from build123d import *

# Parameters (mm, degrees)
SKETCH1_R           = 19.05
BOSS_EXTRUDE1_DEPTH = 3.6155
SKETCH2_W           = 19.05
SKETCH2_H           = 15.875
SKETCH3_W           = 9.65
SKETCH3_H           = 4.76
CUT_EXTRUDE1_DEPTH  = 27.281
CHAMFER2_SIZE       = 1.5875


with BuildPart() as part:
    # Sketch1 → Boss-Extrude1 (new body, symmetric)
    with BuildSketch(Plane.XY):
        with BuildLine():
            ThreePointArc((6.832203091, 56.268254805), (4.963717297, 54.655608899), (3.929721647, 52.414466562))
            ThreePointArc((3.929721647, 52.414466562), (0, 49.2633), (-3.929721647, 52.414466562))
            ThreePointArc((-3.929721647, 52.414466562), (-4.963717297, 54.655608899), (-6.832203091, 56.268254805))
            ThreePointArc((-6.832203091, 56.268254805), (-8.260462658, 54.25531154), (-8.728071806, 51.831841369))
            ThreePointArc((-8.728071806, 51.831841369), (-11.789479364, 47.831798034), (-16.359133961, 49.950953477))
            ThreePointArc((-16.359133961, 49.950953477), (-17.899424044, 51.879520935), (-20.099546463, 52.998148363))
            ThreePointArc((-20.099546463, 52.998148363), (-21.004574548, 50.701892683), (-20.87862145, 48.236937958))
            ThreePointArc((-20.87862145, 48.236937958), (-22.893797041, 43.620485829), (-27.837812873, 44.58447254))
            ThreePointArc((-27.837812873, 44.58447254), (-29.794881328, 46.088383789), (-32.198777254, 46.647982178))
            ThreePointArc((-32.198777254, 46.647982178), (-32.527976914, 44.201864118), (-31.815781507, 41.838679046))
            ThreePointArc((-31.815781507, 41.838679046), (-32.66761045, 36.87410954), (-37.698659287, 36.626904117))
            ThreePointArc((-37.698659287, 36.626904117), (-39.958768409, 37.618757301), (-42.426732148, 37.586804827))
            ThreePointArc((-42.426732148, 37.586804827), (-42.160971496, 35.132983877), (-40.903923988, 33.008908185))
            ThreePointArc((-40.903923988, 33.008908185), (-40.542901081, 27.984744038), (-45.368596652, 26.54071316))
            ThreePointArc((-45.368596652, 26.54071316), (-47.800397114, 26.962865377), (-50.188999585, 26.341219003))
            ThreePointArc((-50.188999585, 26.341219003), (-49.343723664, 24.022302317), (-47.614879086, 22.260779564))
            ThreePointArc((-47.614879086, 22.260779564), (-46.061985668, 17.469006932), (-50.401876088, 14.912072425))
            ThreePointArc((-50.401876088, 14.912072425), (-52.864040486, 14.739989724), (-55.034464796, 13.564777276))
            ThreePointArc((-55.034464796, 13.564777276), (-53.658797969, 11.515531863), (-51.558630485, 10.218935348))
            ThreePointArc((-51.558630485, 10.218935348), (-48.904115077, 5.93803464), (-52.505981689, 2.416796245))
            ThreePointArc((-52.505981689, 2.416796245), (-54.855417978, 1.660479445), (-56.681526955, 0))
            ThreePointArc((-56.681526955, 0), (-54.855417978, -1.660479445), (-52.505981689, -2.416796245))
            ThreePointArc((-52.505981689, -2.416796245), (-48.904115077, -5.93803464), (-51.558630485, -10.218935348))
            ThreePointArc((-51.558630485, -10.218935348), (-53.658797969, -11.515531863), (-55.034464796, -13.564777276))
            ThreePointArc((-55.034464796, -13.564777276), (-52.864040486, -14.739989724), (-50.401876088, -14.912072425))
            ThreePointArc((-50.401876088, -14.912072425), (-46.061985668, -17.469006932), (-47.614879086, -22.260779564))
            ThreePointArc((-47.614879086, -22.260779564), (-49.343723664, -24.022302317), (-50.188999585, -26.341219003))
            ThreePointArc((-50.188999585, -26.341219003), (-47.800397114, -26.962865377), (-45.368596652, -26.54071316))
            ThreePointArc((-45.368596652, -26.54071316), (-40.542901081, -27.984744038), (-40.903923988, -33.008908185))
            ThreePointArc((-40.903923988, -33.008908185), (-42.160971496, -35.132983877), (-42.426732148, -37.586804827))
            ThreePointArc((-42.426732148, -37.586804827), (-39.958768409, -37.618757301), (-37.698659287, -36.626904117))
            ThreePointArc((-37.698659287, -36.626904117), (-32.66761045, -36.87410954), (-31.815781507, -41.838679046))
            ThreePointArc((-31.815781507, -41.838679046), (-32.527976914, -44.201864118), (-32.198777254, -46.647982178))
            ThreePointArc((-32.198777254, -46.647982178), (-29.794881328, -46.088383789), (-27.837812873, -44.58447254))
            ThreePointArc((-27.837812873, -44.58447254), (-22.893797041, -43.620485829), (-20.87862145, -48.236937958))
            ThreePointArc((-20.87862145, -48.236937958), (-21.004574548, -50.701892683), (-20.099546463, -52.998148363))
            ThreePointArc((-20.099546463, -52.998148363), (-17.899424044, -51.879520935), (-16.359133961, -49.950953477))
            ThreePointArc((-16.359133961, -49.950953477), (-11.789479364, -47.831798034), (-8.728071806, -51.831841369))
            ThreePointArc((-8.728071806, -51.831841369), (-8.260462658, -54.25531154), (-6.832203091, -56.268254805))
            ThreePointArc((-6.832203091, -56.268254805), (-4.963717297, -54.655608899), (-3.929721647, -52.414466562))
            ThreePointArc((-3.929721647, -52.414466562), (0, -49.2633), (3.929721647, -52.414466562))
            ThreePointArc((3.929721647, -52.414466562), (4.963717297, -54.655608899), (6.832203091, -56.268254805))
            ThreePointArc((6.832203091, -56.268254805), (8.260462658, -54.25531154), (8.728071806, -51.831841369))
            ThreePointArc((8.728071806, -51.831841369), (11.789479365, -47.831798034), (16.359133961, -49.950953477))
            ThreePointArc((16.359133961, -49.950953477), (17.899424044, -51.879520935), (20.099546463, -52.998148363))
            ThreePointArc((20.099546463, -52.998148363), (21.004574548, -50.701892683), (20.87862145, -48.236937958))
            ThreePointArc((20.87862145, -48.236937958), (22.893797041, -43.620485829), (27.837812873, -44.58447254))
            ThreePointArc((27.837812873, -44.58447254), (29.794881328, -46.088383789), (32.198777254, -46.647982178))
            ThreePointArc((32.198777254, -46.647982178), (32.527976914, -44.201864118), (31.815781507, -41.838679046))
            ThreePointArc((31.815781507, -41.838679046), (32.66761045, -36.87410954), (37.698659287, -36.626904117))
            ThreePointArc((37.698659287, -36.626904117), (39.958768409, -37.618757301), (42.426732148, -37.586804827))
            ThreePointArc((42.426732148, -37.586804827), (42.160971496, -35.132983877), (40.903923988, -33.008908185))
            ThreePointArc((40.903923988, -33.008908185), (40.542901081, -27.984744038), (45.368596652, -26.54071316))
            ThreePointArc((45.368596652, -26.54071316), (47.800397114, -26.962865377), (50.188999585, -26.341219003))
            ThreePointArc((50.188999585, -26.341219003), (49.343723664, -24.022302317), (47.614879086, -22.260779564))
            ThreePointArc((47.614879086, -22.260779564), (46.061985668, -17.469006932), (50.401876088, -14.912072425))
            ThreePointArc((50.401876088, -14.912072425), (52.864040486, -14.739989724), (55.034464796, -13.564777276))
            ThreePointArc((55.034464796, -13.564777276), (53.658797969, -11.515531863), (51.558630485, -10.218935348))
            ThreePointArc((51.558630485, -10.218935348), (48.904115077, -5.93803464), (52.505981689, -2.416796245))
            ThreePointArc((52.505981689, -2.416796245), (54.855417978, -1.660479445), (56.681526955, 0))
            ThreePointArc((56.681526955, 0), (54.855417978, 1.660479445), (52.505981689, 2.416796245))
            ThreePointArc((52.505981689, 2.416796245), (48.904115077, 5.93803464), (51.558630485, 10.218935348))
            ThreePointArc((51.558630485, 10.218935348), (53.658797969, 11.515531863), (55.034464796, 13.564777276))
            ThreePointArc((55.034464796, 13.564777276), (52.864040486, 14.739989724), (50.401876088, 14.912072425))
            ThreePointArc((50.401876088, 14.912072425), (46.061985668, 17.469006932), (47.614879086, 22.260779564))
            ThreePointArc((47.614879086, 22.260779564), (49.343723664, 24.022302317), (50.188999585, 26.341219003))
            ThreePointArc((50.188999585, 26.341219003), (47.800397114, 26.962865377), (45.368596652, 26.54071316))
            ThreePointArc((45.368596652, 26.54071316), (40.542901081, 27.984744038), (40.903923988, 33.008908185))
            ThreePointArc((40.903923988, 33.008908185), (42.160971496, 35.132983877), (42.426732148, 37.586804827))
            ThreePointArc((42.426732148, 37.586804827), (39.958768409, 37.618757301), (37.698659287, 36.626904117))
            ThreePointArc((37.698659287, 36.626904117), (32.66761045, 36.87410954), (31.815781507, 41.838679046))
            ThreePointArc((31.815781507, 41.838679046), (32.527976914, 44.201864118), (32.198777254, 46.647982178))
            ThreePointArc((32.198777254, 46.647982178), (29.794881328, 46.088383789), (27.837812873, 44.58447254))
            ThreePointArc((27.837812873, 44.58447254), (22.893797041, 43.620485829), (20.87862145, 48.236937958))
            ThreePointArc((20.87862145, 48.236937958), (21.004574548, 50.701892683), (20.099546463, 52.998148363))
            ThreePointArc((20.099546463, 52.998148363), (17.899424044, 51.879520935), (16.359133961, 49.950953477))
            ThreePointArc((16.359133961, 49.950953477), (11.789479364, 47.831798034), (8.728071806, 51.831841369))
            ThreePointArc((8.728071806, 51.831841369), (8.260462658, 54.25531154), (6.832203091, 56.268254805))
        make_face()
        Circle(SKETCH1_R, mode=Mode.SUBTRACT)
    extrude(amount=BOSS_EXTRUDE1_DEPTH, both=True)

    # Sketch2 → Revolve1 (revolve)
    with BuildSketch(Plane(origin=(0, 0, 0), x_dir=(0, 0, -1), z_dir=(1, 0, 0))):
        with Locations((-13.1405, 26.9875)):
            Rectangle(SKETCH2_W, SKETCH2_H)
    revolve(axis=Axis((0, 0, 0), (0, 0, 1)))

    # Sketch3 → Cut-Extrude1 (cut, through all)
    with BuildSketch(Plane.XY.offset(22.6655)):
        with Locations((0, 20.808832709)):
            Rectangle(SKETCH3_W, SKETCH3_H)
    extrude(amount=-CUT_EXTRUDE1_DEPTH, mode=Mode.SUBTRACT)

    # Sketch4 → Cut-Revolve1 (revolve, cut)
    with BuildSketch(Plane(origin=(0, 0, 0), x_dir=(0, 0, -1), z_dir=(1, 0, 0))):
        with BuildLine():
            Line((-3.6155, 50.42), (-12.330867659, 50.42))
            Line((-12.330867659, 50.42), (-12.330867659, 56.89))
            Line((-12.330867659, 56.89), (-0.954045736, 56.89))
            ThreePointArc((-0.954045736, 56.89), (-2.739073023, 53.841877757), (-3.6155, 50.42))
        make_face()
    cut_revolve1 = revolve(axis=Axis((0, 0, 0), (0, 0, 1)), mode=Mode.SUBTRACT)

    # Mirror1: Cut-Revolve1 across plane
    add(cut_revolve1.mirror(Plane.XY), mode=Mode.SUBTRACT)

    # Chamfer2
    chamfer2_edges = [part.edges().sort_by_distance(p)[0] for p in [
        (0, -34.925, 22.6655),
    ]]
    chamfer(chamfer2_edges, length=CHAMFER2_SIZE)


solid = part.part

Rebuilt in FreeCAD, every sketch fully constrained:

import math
import FreeCAD as App
import Part
import Sketcher

V = App.Vector
Q = App.Units.Quantity


def edges_at(feature, points):
    """Names of the edges that pass closest to the given points."""
    edges = feature.Shape.Edges
    near = lambda p: min(range(len(edges)), key=lambda i: edges[i].distToShape(Part.Vertex(*p))[0])
    return sorted({f"Edge{near(p) + 1}" for p in points})

doc = App.newDocument("Part")
body = doc.addObject("PartDesign::Body", "Body")

# Sketch on XY plane
sketch1 = body.newObject("Sketcher::SketchObject", "Sketch")
sketch1.AttachmentSupport = (doc.getObject("XY_Plane"), [""])
sketch1.MapMode = "FlatFace"
sketch1.addGeometry(Part.ArcOfCircle(Part.Circle(V(9.6, 51.1, 0), V(0, 0, 1), 5.8), math.radians(119), math.radians(167)), False)
sketch1.addGeometry(Part.ArcOfCircle(Part.Circle(V(0, 53.3, 0), V(0, 0, 1), 4), math.radians(-167), math.radians(-13)), False)
sketch1.addGeometry(Part.ArcOfCircle(Part.Circle(V(-9.6, 51.1, 0), V(0, 0, 1), 5.8), math.radians(13), math.radians(61)), False)
sketch1.addGeometry(Part.ArcOfCircle(Part.Circle(V(-2.9, 52, 0), V(0, 0, 1), 5.8), math.radians(132), math.radians(181)), False)
sketch1.addGeometry(Part.ArcOfCircle(Part.Circle(V(-12.8, 51.7, 0), V(0, 0, 1), 4), math.radians(-154), math.radians(1)), False)
sketch1.addGeometry(Part.ArcOfCircle(Part.Circle(V(-21.6, 47.4, 0), V(0, 0, 1), 5.8), math.radians(26), math.radians(75)), False)
sketch1.addGeometry(Part.ArcOfCircle(Part.Circle(V(-15.2, 49.8, 0), V(0, 0, 1), 5.8), math.radians(146), math.radians(195)), False)
sketch1.addGeometry(Part.ArcOfCircle(Part.Circle(V(-24.8, 47.2, 0), V(0, 0, 1), 4), math.radians(-140), math.radians(15)), False)
sketch1.addGeometry(Part.ArcOfCircle(Part.Circle(V(-32.3, 40.8, 0), V(0, 0, 1), 5.8), math.radians(40), math.radians(89)), False)
sketch1.addGeometry(Part.ArcOfCircle(Part.Circle(V(-26.7, 44.7, 0), V(0, 0, 1), 5.8), math.radians(160), math.radians(209)), False)
sketch1.addGeometry(Part.ArcOfCircle(Part.Circle(V(-35.3, 39.9, 0), V(0, 0, 1), 4), math.radians(-126), math.radians(29)), False)
sketch1.addGeometry(Part.ArcOfCircle(Part.Circle(V(-41.1, 31.9, 0), V(0, 0, 1), 5.8), math.radians(54), math.radians(103)), False)
sketch1.addGeometry(Part.ArcOfCircle(Part.Circle(V(-36.6, 37, 0), V(0, 0, 1), 5.8), math.radians(174), math.radians(223)), False)
sketch1.addGeometry(Part.ArcOfCircle(Part.Circle(V(-43.9, 30.3, 0), V(0, 0, 1), 4), math.radians(-112), math.radians(43)), False)
sketch1.addGeometry(Part.ArcOfCircle(Part.Circle(V(-47.6, 21.1, 0), V(0, 0, 1), 5.8), math.radians(68), math.radians(117)), False)
sketch1.addGeometry(Part.ArcOfCircle(Part.Circle(V(-44.4, 27.1, 0), V(0, 0, 1), 5.8), math.radians(-172), math.radians(-123)), False)
sketch1.addGeometry(Part.ArcOfCircle(Part.Circle(V(-49.8, 18.9, 0), V(0, 0, 1), 4), math.radians(-98), math.radians(57)), False)
sketch1.addGeometry(Part.ArcOfCircle(Part.Circle(V(-51.2, 9.1, 0), V(0, 0, 1), 5.8), math.radians(82), math.radians(131)), False)
sketch1.addGeometry(Part.ArcOfCircle(Part.Circle(V(-49.6, 15.7, 0), V(0, 0, 1), 5.8), math.radians(-158), math.radians(-109)), False)
sketch1.addGeometry(Part.ArcOfCircle(Part.Circle(V(-52.9, 6.4, 0), V(0, 0, 1), 4), math.radians(-84), math.radians(71)), False)
sketch1.addGeometry(Part.ArcOfCircle(Part.Circle(V(-51.9, -3.4, 0), V(0, 0, 1), 5.8), math.radians(96), math.radians(144)), False)
sketch1.addGeometry(Part.ArcOfCircle(Part.Circle(V(-51.9, 3.4, 0), V(0, 0, 1), 5.8), math.radians(-144), math.radians(-96)), False)
sketch1.addGeometry(Part.ArcOfCircle(Part.Circle(V(-52.9, -6.4, 0), V(0, 0, 1), 4), math.radians(-71), math.radians(84)), False)
sketch1.addGeometry(Part.ArcOfCircle(Part.Circle(V(-49.6, -15.7, 0), V(0, 0, 1), 5.8), math.radians(109), math.radians(158)), False)
sketch1.addGeometry(Part.ArcOfCircle(Part.Circle(V(-51.2, -9.1, 0), V(0, 0, 1), 5.8), math.radians(-131), math.radians(-82)), False)
sketch1.addGeometry(Part.ArcOfCircle(Part.Circle(V(-49.8, -18.9, 0), V(0, 0, 1), 4), math.radians(-57), math.radians(98)), False)
sketch1.addGeometry(Part.ArcOfCircle(Part.Circle(V(-44.4, -27.1, 0), V(0, 0, 1), 5.8), math.radians(123), math.radians(172)), False)
sketch1.addGeometry(Part.ArcOfCircle(Part.Circle(V(-47.6, -21.1, 0), V(0, 0, 1), 5.8), math.radians(-117), math.radians(-68)), False)
sketch1.addGeometry(Part.ArcOfCircle(Part.Circle(V(-43.9, -30.3, 0), V(0, 0, 1), 4), math.radians(-43), math.radians(112)), False)
sketch1.addGeometry(Part.ArcOfCircle(Part.Circle(V(-36.6, -37, 0), V(0, 0, 1), 5.8), math.radians(137), math.radians(186)), False)
sketch1.addGeometry(Part.ArcOfCircle(Part.Circle(V(-41.1, -31.9, 0), V(0, 0, 1), 5.8), math.radians(-103), math.radians(-54)), False)
sketch1.addGeometry(Part.ArcOfCircle(Part.Circle(V(-35.3, -39.9, 0), V(0, 0, 1), 4), math.radians(-29), math.radians(126)), False)
sketch1.addGeometry(Part.ArcOfCircle(Part.Circle(V(-26.7, -44.7, 0), V(0, 0, 1), 5.8), math.radians(151), math.radians(200)), False)
sketch1.addGeometry(Part.ArcOfCircle(Part.Circle(V(-32.3, -40.8, 0), V(0, 0, 1), 5.8), math.radians(-89), math.radians(-40)), False)
sketch1.addGeometry(Part.ArcOfCircle(Part.Circle(V(-24.8, -47.2, 0), V(0, 0, 1), 4), math.radians(-15), math.radians(140)), False)
sketch1.addGeometry(Part.ArcOfCircle(Part.Circle(V(-15.2, -49.8, 0), V(0, 0, 1), 5.8), math.radians(165), math.radians(214)), False)
sketch1.addGeometry(Part.ArcOfCircle(Part.Circle(V(-21.6, -47.4, 0), V(0, 0, 1), 5.8), math.radians(-75), math.radians(-26)), False)
sketch1.addGeometry(Part.ArcOfCircle(Part.Circle(V(-12.8, -51.7, 0), V(0, 0, 1), 4), math.radians(-1), math.radians(154)), False)
sketch1.addGeometry(Part.ArcOfCircle(Part.Circle(V(-2.9, -52, 0), V(0, 0, 1), 5.8), math.radians(179), math.radians(228)), False)
sketch1.addGeometry(Part.ArcOfCircle(Part.Circle(V(-9.6, -51.1, 0), V(0, 0, 1), 5.8), math.radians(-61), math.radians(-13)), False)
sketch1.addGeometry(Part.ArcOfCircle(Part.Circle(V(0, -53.3, 0), V(0, 0, 1), 4), math.radians(13), math.radians(167)), False)
sketch1.addGeometry(Part.ArcOfCircle(Part.Circle(V(9.6, -51.1, 0), V(0, 0, 1), 5.8), math.radians(-167), math.radians(-119)), False)
sketch1.addGeometry(Part.ArcOfCircle(Part.Circle(V(2.9, -52, 0), V(0, 0, 1), 5.8), math.radians(-48), math.radians(1)), False)
sketch1.addGeometry(Part.ArcOfCircle(Part.Circle(V(12.8, -51.7, 0), V(0, 0, 1), 4), math.radians(26), math.radians(181)), False)
sketch1.addGeometry(Part.ArcOfCircle(Part.Circle(V(21.6, -47.4, 0), V(0, 0, 1), 5.8), math.radians(-154), math.radians(-105)), False)
sketch1.addGeometry(Part.ArcOfCircle(Part.Circle(V(15.2, -49.8, 0), V(0, 0, 1), 5.8), math.radians(-34), math.radians(15)), False)
sketch1.addGeometry(Part.ArcOfCircle(Part.Circle(V(24.8, -47.2, 0), V(0, 0, 1), 4), math.radians(40), math.radians(195)), False)
sketch1.addGeometry(Part.ArcOfCircle(Part.Circle(V(32.3, -40.8, 0), V(0, 0, 1), 5.8), math.radians(-140), math.radians(-91)), False)
sketch1.addGeometry(Part.ArcOfCircle(Part.Circle(V(26.7, -44.7, 0), V(0, 0, 1), 5.8), math.radians(-20), math.radians(29)), False)
sketch1.addGeometry(Part.ArcOfCircle(Part.Circle(V(35.3, -39.9, 0), V(0, 0, 1), 4), math.radians(54), math.radians(209)), False)
sketch1.addGeometry(Part.ArcOfCircle(Part.Circle(V(41.1, -31.9, 0), V(0, 0, 1), 5.8), math.radians(-126), math.radians(-77)), False)
sketch1.addGeometry(Part.ArcOfCircle(Part.Circle(V(36.6, -37, 0), V(0, 0, 1), 5.8), math.radians(-6), math.radians(43)), False)
sketch1.addGeometry(Part.ArcOfCircle(Part.Circle(V(43.9, -30.3, 0), V(0, 0, 1), 4), math.radians(68), math.radians(223)), False)
sketch1.addGeometry(Part.ArcOfCircle(Part.Circle(V(47.6, -21.1, 0), V(0, 0, 1), 5.8), math.radians(-112), math.radians(-63)), False)
sketch1.addGeometry(Part.ArcOfCircle(Part.Circle(V(44.4, -27.1, 0), V(0, 0, 1), 5.8), math.radians(8), math.radians(57)), False)
sketch1.addGeometry(Part.ArcOfCircle(Part.Circle(V(49.8, -18.9, 0), V(0, 0, 1), 4), math.radians(82), math.radians(237)), False)
sketch1.addGeometry(Part.ArcOfCircle(Part.Circle(V(51.2, -9.1, 0), V(0, 0, 1), 5.8), math.radians(-98), math.radians(-49)), False)
sketch1.addGeometry(Part.ArcOfCircle(Part.Circle(V(49.6, -15.7, 0), V(0, 0, 1), 5.8), math.radians(22), math.radians(71)), False)
sketch1.addGeometry(Part.ArcOfCircle(Part.Circle(V(52.9, -6.4, 0), V(0, 0, 1), 4), math.radians(96), math.radians(251)), False)
sketch1.addGeometry(Part.ArcOfCircle(Part.Circle(V(51.9, 3.4, 0), V(0, 0, 1), 5.8), math.radians(-84), math.radians(-36)), False)
sketch1.addGeometry(Part.ArcOfCircle(Part.Circle(V(51.9, -3.4, 0), V(0, 0, 1), 5.8), math.radians(36), math.radians(84)), False)
sketch1.addGeometry(Part.ArcOfCircle(Part.Circle(V(52.9, 6.4, 0), V(0, 0, 1), 4), math.radians(109), math.radians(264)), False)
sketch1.addGeometry(Part.ArcOfCircle(Part.Circle(V(49.6, 15.7, 0), V(0, 0, 1), 5.8), math.radians(-71), math.radians(-22)), False)
sketch1.addGeometry(Part.ArcOfCircle(Part.Circle(V(51.2, 9.1, 0), V(0, 0, 1), 5.8), math.radians(49), math.radians(98)), False)
sketch1.addGeometry(Part.ArcOfCircle(Part.Circle(V(49.8, 18.9, 0), V(0, 0, 1), 4), math.radians(123), math.radians(278)), False)
sketch1.addGeometry(Part.ArcOfCircle(Part.Circle(V(44.4, 27.1, 0), V(0, 0, 1), 5.8), math.radians(-57), math.radians(-8)), False)
sketch1.addGeometry(Part.ArcOfCircle(Part.Circle(V(47.6, 21.1, 0), V(0, 0, 1), 5.8), math.radians(63), math.radians(112)), False)
sketch1.addGeometry(Part.ArcOfCircle(Part.Circle(V(43.9, 30.3, 0), V(0, 0, 1), 4), math.radians(137), math.radians(292)), False)
sketch1.addGeometry(Part.ArcOfCircle(Part.Circle(V(36.6, 37, 0), V(0, 0, 1), 5.8), math.radians(-43), math.radians(6)), False)
sketch1.addGeometry(Part.ArcOfCircle(Part.Circle(V(41.1, 31.9, 0), V(0, 0, 1), 5.8), math.radians(77), math.radians(126)), False)
sketch1.addGeometry(Part.ArcOfCircle(Part.Circle(V(35.3, 39.9, 0), V(0, 0, 1), 4), math.radians(151), math.radians(306)), False)
sketch1.addGeometry(Part.ArcOfCircle(Part.Circle(V(26.7, 44.7, 0), V(0, 0, 1), 5.8), math.radians(-29), math.radians(20)), False)
sketch1.addGeometry(Part.ArcOfCircle(Part.Circle(V(32.3, 40.8, 0), V(0, 0, 1), 5.8), math.radians(91), math.radians(140)), False)
sketch1.addGeometry(Part.ArcOfCircle(Part.Circle(V(24.8, 47.2, 0), V(0, 0, 1), 4), math.radians(165), math.radians(320)), False)
sketch1.addGeometry(Part.ArcOfCircle(Part.Circle(V(15.2, 49.8, 0), V(0, 0, 1), 5.8), math.radians(-15), math.radians(34)), False)
sketch1.addGeometry(Part.ArcOfCircle(Part.Circle(V(21.6, 47.4, 0), V(0, 0, 1), 5.8), math.radians(105), math.radians(154)), False)
sketch1.addGeometry(Part.ArcOfCircle(Part.Circle(V(12.8, 51.7, 0), V(0, 0, 1), 4), math.radians(179), math.radians(334)), False)
sketch1.addGeometry(Part.ArcOfCircle(Part.Circle(V(2.9, 52, 0), V(0, 0, 1), 5.8), math.radians(-1), math.radians(48)), False)
sketch1.addGeometry(Part.Circle(V(0, 0, 0), V(0, 0, 1), 19.1), False)
sketch1.addConstraint(Sketcher.Constraint("Tangent", 0, 2, 1, 2))
sketch1.addConstraint(Sketcher.Constraint("Tangent", 1, 1, 2, 1))
sketch1.addConstraint(Sketcher.Constraint("Coincident", 2, 2, 3, 1))
sketch1.addConstraint(Sketcher.Constraint("Tangent", 3, 2, 4, 2))
sketch1.addConstraint(Sketcher.Constraint("Tangent", 4, 1, 5, 1))
sketch1.addConstraint(Sketcher.Constraint("Coincident", 5, 2, 6, 1))
sketch1.addConstraint(Sketcher.Constraint("Tangent", 6, 2, 7, 2))
sketch1.addConstraint(Sketcher.Constraint("Tangent", 7, 1, 8, 1))
sketch1.addConstraint(Sketcher.Constraint("Coincident", 8, 2, 9, 1))
sketch1.addConstraint(Sketcher.Constraint("Tangent", 9, 2, 10, 2))
sketch1.addConstraint(Sketcher.Constraint("Tangent", 10, 1, 11, 1))
sketch1.addConstraint(Sketcher.Constraint("Coincident", 11, 2, 12, 1))
sketch1.addConstraint(Sketcher.Constraint("Tangent", 12, 2, 13, 2))
sketch1.addConstraint(Sketcher.Constraint("Tangent", 13, 1, 14, 1))
sketch1.addConstraint(Sketcher.Constraint("Coincident", 14, 2, 15, 1))
sketch1.addConstraint(Sketcher.Constraint("Tangent", 15, 2, 16, 2))
sketch1.addConstraint(Sketcher.Constraint("Tangent", 16, 1, 17, 1))
sketch1.addConstraint(Sketcher.Constraint("Coincident", 17, 2, 18, 1))
sketch1.addConstraint(Sketcher.Constraint("Tangent", 18, 2, 19, 2))
sketch1.addConstraint(Sketcher.Constraint("Tangent", 19, 1, 20, 1))
sketch1.addConstraint(Sketcher.Constraint("Coincident", 20, 2, 21, 1))
sketch1.addConstraint(Sketcher.Constraint("Tangent", 21, 2, 22, 2))
sketch1.addConstraint(Sketcher.Constraint("Tangent", 22, 1, 23, 1))
sketch1.addConstraint(Sketcher.Constraint("Coincident", 23, 2, 24, 1))
sketch1.addConstraint(Sketcher.Constraint("Tangent", 24, 2, 25, 2))
sketch1.addConstraint(Sketcher.Constraint("Tangent", 25, 1, 26, 1))
sketch1.addConstraint(Sketcher.Constraint("Coincident", 26, 2, 27, 1))
sketch1.addConstraint(Sketcher.Constraint("Tangent", 27, 2, 28, 2))
sketch1.addConstraint(Sketcher.Constraint("Tangent", 28, 1, 29, 1))
sketch1.addConstraint(Sketcher.Constraint("Coincident", 29, 2, 30, 1))
sketch1.addConstraint(Sketcher.Constraint("Tangent", 30, 2, 31, 2))
sketch1.addConstraint(Sketcher.Constraint("Tangent", 31, 1, 32, 1))
sketch1.addConstraint(Sketcher.Constraint("Coincident", 32, 2, 33, 1))
sketch1.addConstraint(Sketcher.Constraint("Tangent", 33, 2, 34, 2))
sketch1.addConstraint(Sketcher.Constraint("Tangent", 34, 1, 35, 1))
sketch1.addConstraint(Sketcher.Constraint("Coincident", 35, 2, 36, 1))
sketch1.addConstraint(Sketcher.Constraint("Tangent", 36, 2, 37, 2))
sketch1.addConstraint(Sketcher.Constraint("Tangent", 37, 1, 38, 1))
sketch1.addConstraint(Sketcher.Constraint("Coincident", 38, 2, 39, 1))
sketch1.addConstraint(Sketcher.Constraint("Tangent", 39, 2, 40, 2))
sketch1.addConstraint(Sketcher.Constraint("Tangent", 40, 1, 41, 1))
sketch1.addConstraint(Sketcher.Constraint("Coincident", 41, 2, 42, 1))
sketch1.addConstraint(Sketcher.Constraint("Tangent", 42, 2, 43, 2))
sketch1.addConstraint(Sketcher.Constraint("Tangent", 43, 1, 44, 1))
sketch1.addConstraint(Sketcher.Constraint("Coincident", 44, 2, 45, 1))
sketch1.addConstraint(Sketcher.Constraint("Tangent", 45, 2, 46, 2))
sketch1.addConstraint(Sketcher.Constraint("Tangent", 46, 1, 47, 1))
sketch1.addConstraint(Sketcher.Constraint("Coincident", 47, 2, 48, 1))
sketch1.addConstraint(Sketcher.Constraint("Tangent", 48, 2, 49, 2))
sketch1.addConstraint(Sketcher.Constraint("Tangent", 49, 1, 50, 1))
sketch1.addConstraint(Sketcher.Constraint("Coincident", 50, 2, 51, 1))
sketch1.addConstraint(Sketcher.Constraint("Tangent", 51, 2, 52, 2))
sketch1.addConstraint(Sketcher.Constraint("Tangent", 52, 1, 53, 1))
sketch1.addConstraint(Sketcher.Constraint("Coincident", 53, 2, 54, 1))
sketch1.addConstraint(Sketcher.Constraint("Tangent", 54, 2, 55, 2))
sketch1.addConstraint(Sketcher.Constraint("Tangent", 55, 1, 56, 1))
sketch1.addConstraint(Sketcher.Constraint("Coincident", 56, 2, 57, 1))
sketch1.addConstraint(Sketcher.Constraint("Tangent", 57, 2, 58, 2))
sketch1.addConstraint(Sketcher.Constraint("Tangent", 58, 1, 59, 1))
sketch1.addConstraint(Sketcher.Constraint("Coincident", 59, 2, 60, 1))
sketch1.addConstraint(Sketcher.Constraint("Tangent", 60, 2, 61, 2))
sketch1.addConstraint(Sketcher.Constraint("Tangent", 61, 1, 62, 1))
sketch1.addConstraint(Sketcher.Constraint("Coincident", 62, 2, 63, 1))
sketch1.addConstraint(Sketcher.Constraint("Tangent", 63, 2, 64, 2))
sketch1.addConstraint(Sketcher.Constraint("Tangent", 64, 1, 65, 1))
sketch1.addConstraint(Sketcher.Constraint("Coincident", 65, 2, 66, 1))
sketch1.addConstraint(Sketcher.Constraint("Tangent", 66, 2, 67, 2))
sketch1.addConstraint(Sketcher.Constraint("Tangent", 67, 1, 68, 1))
sketch1.addConstraint(Sketcher.Constraint("Coincident", 68, 2, 69, 1))
sketch1.addConstraint(Sketcher.Constraint("Tangent", 69, 2, 70, 2))
sketch1.addConstraint(Sketcher.Constraint("Tangent", 70, 1, 71, 1))
sketch1.addConstraint(Sketcher.Constraint("Coincident", 71, 2, 72, 1))
sketch1.addConstraint(Sketcher.Constraint("Tangent", 72, 2, 73, 2))
sketch1.addConstraint(Sketcher.Constraint("Tangent", 73, 1, 74, 1))
sketch1.addConstraint(Sketcher.Constraint("Coincident", 74, 2, 75, 1))
sketch1.addConstraint(Sketcher.Constraint("Tangent", 75, 2, 76, 2))
sketch1.addConstraint(Sketcher.Constraint("Tangent", 76, 1, 77, 1))
sketch1.addConstraint(Sketcher.Constraint("Coincident", 77, 2, 0, 1))
sketch1.addConstraint(Sketcher.Constraint("Coincident", 78, 3, -1, 1))
sketch1.addConstraint(Sketcher.Constraint("Equal", 0, 2))
sketch1.addConstraint(Sketcher.Constraint("Equal", 2, 3))
sketch1.addConstraint(Sketcher.Constraint("Equal", 1, 4))
sketch1.addConstraint(Sketcher.Constraint("Equal", 3, 5))
sketch1.addConstraint(Sketcher.Constraint("Equal", 5, 6))
sketch1.addConstraint(Sketcher.Constraint("Equal", 4, 7))
sketch1.addConstraint(Sketcher.Constraint("Equal", 6, 8))
sketch1.addConstraint(Sketcher.Constraint("Equal", 8, 9))
sketch1.addConstraint(Sketcher.Constraint("Equal", 7, 10))
sketch1.addConstraint(Sketcher.Constraint("Equal", 9, 11))
sketch1.addConstraint(Sketcher.Constraint("Equal", 11, 12))
sketch1.addConstraint(Sketcher.Constraint("Equal", 10, 13))
sketch1.addConstraint(Sketcher.Constraint("Equal", 12, 14))
sketch1.addConstraint(Sketcher.Constraint("Equal", 14, 15))
sketch1.addConstraint(Sketcher.Constraint("Equal", 13, 16))
sketch1.addConstraint(Sketcher.Constraint("Equal", 15, 17))
sketch1.addConstraint(Sketcher.Constraint("Equal", 17, 18))
sketch1.addConstraint(Sketcher.Constraint("Equal", 16, 19))
sketch1.addConstraint(Sketcher.Constraint("Equal", 18, 20))
sketch1.addConstraint(Sketcher.Constraint("Equal", 20, 21))
sketch1.addConstraint(Sketcher.Constraint("Equal", 19, 22))
sketch1.addConstraint(Sketcher.Constraint("Equal", 21, 23))
sketch1.addConstraint(Sketcher.Constraint("Equal", 23, 24))
sketch1.addConstraint(Sketcher.Constraint("Equal", 22, 25))
sketch1.addConstraint(Sketcher.Constraint("Equal", 24, 26))
sketch1.addConstraint(Sketcher.Constraint("Equal", 26, 27))
sketch1.addConstraint(Sketcher.Constraint("Equal", 25, 28))
sketch1.addConstraint(Sketcher.Constraint("Equal", 27, 29))
sketch1.addConstraint(Sketcher.Constraint("Equal", 29, 30))
sketch1.addConstraint(Sketcher.Constraint("Equal", 28, 31))
sketch1.addConstraint(Sketcher.Constraint("Equal", 30, 32))
sketch1.addConstraint(Sketcher.Constraint("Equal", 32, 33))
sketch1.addConstraint(Sketcher.Constraint("Equal", 31, 34))
sketch1.addConstraint(Sketcher.Constraint("Equal", 33, 35))
sketch1.addConstraint(Sketcher.Constraint("Equal", 35, 36))
sketch1.addConstraint(Sketcher.Constraint("Equal", 34, 37))
sketch1.addConstraint(Sketcher.Constraint("Equal", 36, 38))
sketch1.addConstraint(Sketcher.Constraint("Equal", 38, 39))
sketch1.addConstraint(Sketcher.Constraint("Equal", 37, 40))
sketch1.addConstraint(Sketcher.Constraint("Equal", 39, 41))
sketch1.addConstraint(Sketcher.Constraint("Equal", 41, 42))
sketch1.addConstraint(Sketcher.Constraint("Equal", 40, 43))
sketch1.addConstraint(Sketcher.Constraint("Equal", 42, 44))
sketch1.addConstraint(Sketcher.Constraint("Equal", 44, 45))
sketch1.addConstraint(Sketcher.Constraint("Equal", 43, 46))
sketch1.addConstraint(Sketcher.Constraint("Equal", 45, 47))
sketch1.addConstraint(Sketcher.Constraint("Equal", 47, 48))
sketch1.addConstraint(Sketcher.Constraint("Equal", 46, 49))
sketch1.addConstraint(Sketcher.Constraint("Equal", 48, 50))
sketch1.addConstraint(Sketcher.Constraint("Equal", 50, 51))
sketch1.addConstraint(Sketcher.Constraint("Equal", 49, 52))
sketch1.addConstraint(Sketcher.Constraint("Equal", 51, 53))
sketch1.addConstraint(Sketcher.Constraint("Equal", 53, 54))
sketch1.addConstraint(Sketcher.Constraint("Equal", 52, 55))
sketch1.addConstraint(Sketcher.Constraint("Equal", 54, 56))
sketch1.addConstraint(Sketcher.Constraint("Equal", 56, 57))
sketch1.addConstraint(Sketcher.Constraint("Equal", 55, 58))
sketch1.addConstraint(Sketcher.Constraint("Equal", 57, 59))
sketch1.addConstraint(Sketcher.Constraint("Equal", 59, 60))
sketch1.addConstraint(Sketcher.Constraint("Equal", 58, 61))
sketch1.addConstraint(Sketcher.Constraint("Equal", 60, 62))
sketch1.addConstraint(Sketcher.Constraint("Equal", 62, 63))
sketch1.addConstraint(Sketcher.Constraint("Equal", 61, 64))
sketch1.addConstraint(Sketcher.Constraint("Equal", 63, 65))
sketch1.addConstraint(Sketcher.Constraint("Equal", 65, 66))
sketch1.addConstraint(Sketcher.Constraint("Equal", 64, 67))
sketch1.addConstraint(Sketcher.Constraint("Equal", 66, 68))
sketch1.addConstraint(Sketcher.Constraint("Equal", 68, 69))
sketch1.addConstraint(Sketcher.Constraint("Equal", 67, 70))
sketch1.addConstraint(Sketcher.Constraint("Equal", 69, 71))
sketch1.addConstraint(Sketcher.Constraint("Equal", 71, 72))
sketch1.addConstraint(Sketcher.Constraint("Equal", 70, 73))
sketch1.addConstraint(Sketcher.Constraint("Equal", 72, 74))
sketch1.addConstraint(Sketcher.Constraint("Equal", 74, 75))
sketch1.addConstraint(Sketcher.Constraint("Equal", 73, 76))
sketch1.addConstraint(Sketcher.Constraint("Equal", 75, 77))
sketch1.addConstraint(Sketcher.Constraint("Symmetric", 0, 3, 39, 3, -1, 1))
sketch1.addConstraint(Sketcher.Constraint("Symmetric", 2, 3, 41, 3, -1, 1))
sketch1.addConstraint(Sketcher.Constraint("Symmetric", 3, 3, 42, 3, -1, 1))
sketch1.addConstraint(Sketcher.Constraint("Symmetric", 5, 3, 44, 3, -1, 1))
sketch1.addConstraint(Sketcher.Constraint("Symmetric", 6, 3, 45, 3, -1, 1))
sketch1.addConstraint(Sketcher.Constraint("Symmetric", 8, 3, 47, 3, -1, 1))
sketch1.addConstraint(Sketcher.Constraint("Symmetric", 9, 3, 48, 3, -1, 1))
sketch1.addConstraint(Sketcher.Constraint("Symmetric", 11, 3, 50, 3, -1, 1))
sketch1.addConstraint(Sketcher.Constraint("Symmetric", 12, 3, 51, 3, -1, 1))
sketch1.addConstraint(Sketcher.Constraint("Symmetric", 14, 3, 53, 3, -1, 1))
sketch1.addConstraint(Sketcher.Constraint("Symmetric", 15, 3, 54, 3, -1, 1))
sketch1.addConstraint(Sketcher.Constraint("Symmetric", 17, 3, 56, 3, -1, 1))
sketch1.addConstraint(Sketcher.Constraint("Symmetric", 18, 3, 57, 3, -1, 1))
sketch1.addConstraint(Sketcher.Constraint("Symmetric", 20, 3, 59, 3, -1, 1))
sketch1.addConstraint(Sketcher.Constraint("Symmetric", 21, 3, 60, 3, -1, 1))
sketch1.addConstraint(Sketcher.Constraint("Symmetric", 23, 3, 62, 3, -1, 1))
sketch1.addConstraint(Sketcher.Constraint("Symmetric", 24, 3, 63, 3, -1, 1))
sketch1.addConstraint(Sketcher.Constraint("Symmetric", 26, 3, 65, 3, -1, 1))
sketch1.addConstraint(Sketcher.Constraint("Symmetric", 27, 3, 66, 3, -1, 1))
sketch1.addConstraint(Sketcher.Constraint("Symmetric", 29, 3, 68, 3, -1, 1))
sketch1.addConstraint(Sketcher.Constraint("Symmetric", 30, 3, 69, 3, -1, 1))
sketch1.addConstraint(Sketcher.Constraint("Symmetric", 32, 3, 71, 3, -1, 1))
sketch1.addConstraint(Sketcher.Constraint("Symmetric", 33, 3, 72, 3, -1, 1))
sketch1.addConstraint(Sketcher.Constraint("Symmetric", 35, 3, 74, 3, -1, 1))
sketch1.addConstraint(Sketcher.Constraint("Symmetric", 36, 3, 75, 3, -1, 1))
sketch1.addConstraint(Sketcher.Constraint("Symmetric", 38, 3, 77, 3, -1, 1))
sketch1.addConstraint(Sketcher.Constraint("Symmetric", 0, 3, 2, 3, -2))
sketch1.addConstraint(Sketcher.Constraint("Symmetric", 38, 3, 42, 3, -2))
sketch1.addConstraint(Sketcher.Constraint("Symmetric", 36, 3, 44, 3, -2))
sketch1.addConstraint(Sketcher.Constraint("Symmetric", 35, 3, 45, 3, -2))
sketch1.addConstraint(Sketcher.Constraint("Symmetric", 33, 3, 47, 3, -2))
sketch1.addConstraint(Sketcher.Constraint("Symmetric", 32, 3, 48, 3, -2))
sketch1.addConstraint(Sketcher.Constraint("Symmetric", 30, 3, 50, 3, -2))
sketch1.addConstraint(Sketcher.Constraint("Symmetric", 29, 3, 51, 3, -2))
sketch1.addConstraint(Sketcher.Constraint("Symmetric", 27, 3, 53, 3, -2))
sketch1.addConstraint(Sketcher.Constraint("Symmetric", 26, 3, 54, 3, -2))
sketch1.addConstraint(Sketcher.Constraint("Symmetric", 24, 3, 56, 3, -2))
sketch1.addConstraint(Sketcher.Constraint("Symmetric", 23, 3, 57, 3, -2))
sketch1.addConstraint(Sketcher.Constraint("Symmetric", 21, 3, 59, 3, -2))
sketch1.addConstraint(Sketcher.Constraint("Diameter", 78, Q("1.5 in")))
sketch1.addConstraint(Sketcher.Constraint("Radius", 1, Q("0.1585 in")))
sketch1.addConstraint(Sketcher.Constraint("DistanceY", -1, 1, 1, 3, Q("2.098 in")))
sketch1.addConstraint(Sketcher.Constraint("DistanceY", -1, 1, 13, 3, Q("1.1917998 in")))
sketch1.addConstraint(Sketcher.Constraint("Radius", 0, 5.831255))
sketch1.addConstraint(Sketcher.Constraint("DistanceX", 14, 2, -1, 1, 50.189))
sketch1.addConstraint(Sketcher.Constraint("DistanceX", -1, 1, 0, 3, 9.621669))
sketch1.addConstraint(Sketcher.Constraint("DistanceX", 3, 3, -1, 1, 2.898311))
sketch1.addConstraint(Sketcher.Constraint("DistanceX", 4, 3, -1, 1, 12.75294))
sketch1.addConstraint(Sketcher.Constraint("DistanceX", 5, 3, -1, 1, 21.582472))
sketch1.addConstraint(Sketcher.Constraint("DistanceX", 6, 3, -1, 1, 15.249851))
sketch1.addConstraint(Sketcher.Constraint("DistanceY", -1, 1, 6, 3, 49.76025))
sketch1.addConstraint(Sketcher.Constraint("DistanceX", 8, 3, -1, 1, 32.28898))
sketch1.addConstraint(Sketcher.Constraint("DistanceY", -1, 1, 9, 3, 44.664779))
sketch1.addConstraint(Sketcher.Constraint("DistanceY", -1, 1, 10, 3, 39.887539))
sketch1.addConstraint(Sketcher.Constraint("DistanceX", 11, 3, -1, 1, 41.11897))
sketch1.addConstraint(Sketcher.Constraint("DistanceX", 13, 3, -1, 1, 43.856152))
sketch1.addConstraint(Sketcher.Constraint("DistanceY", -1, 1, 15, 3, 27.13356))
sketch1.addConstraint(Sketcher.Constraint("DistanceY", -1, 1, 16, 3, 18.896611))
sketch1.addConstraint(Sketcher.Constraint("DistanceX", 19, 3, -1, 1, 52.900662))
sketch1.addConstraint(Sketcher.Constraint("DistanceY", 20, 3, -1, 1, 3.386369))
sketch1.addConstraint(Sketcher.Constraint("DistanceY", -1, 1, 3, 2, 51.831841))
sketch1.addConstraint(Sketcher.Constraint("DistanceX", 6, 2, -1, 1, 20.878621))
sketch1.addConstraint(Sketcher.Constraint("DistanceX", 9, 2, -1, 1, 31.815782))
sketch1.addConstraint(Sketcher.Constraint("DistanceY", -1, 1, 12, 2, 33.008908))
sketch1.addConstraint(Sketcher.Constraint("DistanceY", -1, 1, 14, 2, 26.341219))
sketch1.addConstraint(Sketcher.Constraint("DistanceX", 18, 2, -1, 1, 51.55863))
sketch1.addConstraint(Sketcher.Constraint("DistanceX", 19, 1, -1, 1, 52.505982))
sketch1.addConstraint(Sketcher.Constraint("DistanceX", 17, 3, -1, 1, 51.235608))
pad1 = body.newObject("PartDesign::Pad", "Pad")
pad1.Profile = sketch1
pad1.Length = 7.231
pad1.Midplane = True

# Sketch on YZ plane
sketch2 = body.newObject("Sketcher::SketchObject", "Sketch001")
sketch2.AttachmentSupport = (doc.getObject("YZ_Plane"), [""])
sketch2.MapMode = "FlatFace"
sketch2.addGeometry(Part.LineSegment(V(35, 23, 0), V(19, 23, 0)), False)
sketch2.addGeometry(Part.LineSegment(V(19, 23, 0), V(19, 4, 0)), False)
sketch2.addGeometry(Part.LineSegment(V(19, 4, 0), V(35, 4, 0)), False)
sketch2.addGeometry(Part.LineSegment(V(35, 4, 0), V(35, 23, 0)), False)
sketch2.addConstraint(Sketcher.Constraint("Coincident", 0, 2, 1, 1))
sketch2.addConstraint(Sketcher.Constraint("Coincident", 1, 2, 2, 1))
sketch2.addConstraint(Sketcher.Constraint("Coincident", 2, 2, 3, 1))
sketch2.addConstraint(Sketcher.Constraint("Coincident", 3, 2, 0, 1))
sketch2.addConstraint(Sketcher.Constraint("Horizontal", 0))
sketch2.addConstraint(Sketcher.Constraint("Vertical", 1))
sketch2.addConstraint(Sketcher.Constraint("Horizontal", 2))
sketch2.addConstraint(Sketcher.Constraint("Vertical", 3))
sketch2.addConstraint(Sketcher.Constraint("DistanceY", 1, 2, 1, 1, Q("0.75 in")))
sketch2.addConstraint(Sketcher.Constraint("DistanceX", 0, 2, 0, 1, Q("0.625 in")))
sketch2.addConstraint(Sketcher.Constraint("DistanceX", -1, 1, 0, 2, Q("0.75 in")))
sketch2.addConstraint(Sketcher.Constraint("DistanceY", -1, 1, 0, 2, 22.6655))
revolution = body.newObject("PartDesign::Revolution", "Revolution")
revolution.Profile = sketch2
revolution.ReferenceAxis = (sketch2, ["V_Axis"])
revolution.Angle = 360

# Sketch on XY plane
sketch3 = body.newObject("Sketcher::SketchObject", "Sketch002")
sketch3.AttachmentSupport = (doc.getObject("XY_Plane"), [""])
sketch3.MapMode = "FlatFace"
sketch3.AttachmentOffset = App.Placement(V(0, 0, 22.6655), App.Rotation())
sketch3.addGeometry(Part.LineSegment(V(-4.8, 23.2, 0), V(-4.8, 18.4, 0)), False)
sketch3.addGeometry(Part.LineSegment(V(-4.8, 18.4, 0), V(4.8, 18.4, 0)), False)
sketch3.addGeometry(Part.LineSegment(V(4.8, 18.4, 0), V(4.8, 23.2, 0)), False)
sketch3.addGeometry(Part.LineSegment(V(4.8, 23.2, 0), V(-4.8, 23.2, 0)), False)
sketch3.addConstraint(Sketcher.Constraint("Coincident", 0, 2, 1, 1))
sketch3.addConstraint(Sketcher.Constraint("Coincident", 1, 2, 2, 1))
sketch3.addConstraint(Sketcher.Constraint("Coincident", 2, 2, 3, 1))
sketch3.addConstraint(Sketcher.Constraint("Coincident", 3, 2, 0, 1))
sketch3.addConstraint(Sketcher.Constraint("Vertical", 0))
sketch3.addConstraint(Sketcher.Constraint("Horizontal", 1))
sketch3.addConstraint(Sketcher.Constraint("Vertical", 2))
sketch3.addConstraint(Sketcher.Constraint("Horizontal", 3))
sketch3.addConstraint(Sketcher.Constraint("DistanceX", 1, 1, 1, 2, 9.65))
sketch3.addConstraint(Sketcher.Constraint("DistanceY", 0, 2, 0, 1, 4.76))
sketch3.addConstraint(Sketcher.Constraint("DistanceX", 0, 2, -1, 1, 4.825))
sketch3.addConstraint(Sketcher.Constraint("DistanceY", -1, 1, 0, 2, 18.428833))
pocket1 = body.newObject("PartDesign::Pocket", "Pocket")
pocket1.Profile = sketch3
pocket1.Type = "ThroughAll"

# Sketch on YZ plane
sketch4 = body.newObject("Sketcher::SketchObject", "Sketch003")
sketch4.AttachmentSupport = (doc.getObject("YZ_Plane"), [""])
sketch4.MapMode = "FlatFace"
sketch4.addGeometry(Part.LineSegment(V(50, 12, 0), V(50, 4, 0)), False)
sketch4.addGeometry(Part.ArcOfCircle(Part.Circle(V(49, -9, 0), V(0, 0, 1), 13), math.radians(52), math.radians(84)), False)
sketch4.addGeometry(Part.LineSegment(V(57, 1, 0), V(57, 12, 0)), False)
sketch4.addGeometry(Part.LineSegment(V(57, 12, 0), V(50, 12, 0)), False)
sketch4.addConstraint(Sketcher.Constraint("Coincident", 0, 2, 1, 2))
sketch4.addConstraint(Sketcher.Constraint("Coincident", 1, 1, 2, 1))
sketch4.addConstraint(Sketcher.Constraint("Coincident", 2, 2, 3, 1))
sketch4.addConstraint(Sketcher.Constraint("Coincident", 3, 2, 0, 1))
sketch4.addConstraint(Sketcher.Constraint("Vertical", 0))
sketch4.addConstraint(Sketcher.Constraint("Vertical", 2))
sketch4.addConstraint(Sketcher.Constraint("Horizontal", 3))
sketch4.addConstraint(Sketcher.Constraint("Radius", 1, Q("0.5 in")))
sketch4.addConstraint(Sketcher.Constraint("DistanceX", 3, 2, 3, 1, 6.47))
sketch4.addConstraint(Sketcher.Constraint("DistanceY", 2, 1, 2, 2, 11.376822))
sketch4.addConstraint(Sketcher.Constraint("DistanceX", -1, 1, 0, 2, 50.42))
sketch4.addConstraint(Sketcher.Constraint("DistanceY", -1, 1, 0, 2, 3.6155))
sketch4.addConstraint(Sketcher.Constraint("DistanceY", 0, 2, 0, 1, 8.715368))
groove = body.newObject("PartDesign::Groove", "Groove")
groove.Profile = sketch4
groove.ReferenceAxis = (sketch4, ["V_Axis"])
groove.Angle = 360
doc.recompute()

mirrored = body.newObject("PartDesign::Mirrored", "Mirrored")
mirrored.Originals = [groove]
mirrored.MirrorPlane = (doc.getObject("XY_Plane"), [""])
body.Tip = mirrored
doc.recompute()

chamfer = body.newObject("PartDesign::Chamfer", "Chamfer")
chamfer.Base = (mirrored, edges_at(mirrored, [(0, -34.925, 22.666)]))
chamfer.Size = Q("0.0625 in")

doc.recompute()
